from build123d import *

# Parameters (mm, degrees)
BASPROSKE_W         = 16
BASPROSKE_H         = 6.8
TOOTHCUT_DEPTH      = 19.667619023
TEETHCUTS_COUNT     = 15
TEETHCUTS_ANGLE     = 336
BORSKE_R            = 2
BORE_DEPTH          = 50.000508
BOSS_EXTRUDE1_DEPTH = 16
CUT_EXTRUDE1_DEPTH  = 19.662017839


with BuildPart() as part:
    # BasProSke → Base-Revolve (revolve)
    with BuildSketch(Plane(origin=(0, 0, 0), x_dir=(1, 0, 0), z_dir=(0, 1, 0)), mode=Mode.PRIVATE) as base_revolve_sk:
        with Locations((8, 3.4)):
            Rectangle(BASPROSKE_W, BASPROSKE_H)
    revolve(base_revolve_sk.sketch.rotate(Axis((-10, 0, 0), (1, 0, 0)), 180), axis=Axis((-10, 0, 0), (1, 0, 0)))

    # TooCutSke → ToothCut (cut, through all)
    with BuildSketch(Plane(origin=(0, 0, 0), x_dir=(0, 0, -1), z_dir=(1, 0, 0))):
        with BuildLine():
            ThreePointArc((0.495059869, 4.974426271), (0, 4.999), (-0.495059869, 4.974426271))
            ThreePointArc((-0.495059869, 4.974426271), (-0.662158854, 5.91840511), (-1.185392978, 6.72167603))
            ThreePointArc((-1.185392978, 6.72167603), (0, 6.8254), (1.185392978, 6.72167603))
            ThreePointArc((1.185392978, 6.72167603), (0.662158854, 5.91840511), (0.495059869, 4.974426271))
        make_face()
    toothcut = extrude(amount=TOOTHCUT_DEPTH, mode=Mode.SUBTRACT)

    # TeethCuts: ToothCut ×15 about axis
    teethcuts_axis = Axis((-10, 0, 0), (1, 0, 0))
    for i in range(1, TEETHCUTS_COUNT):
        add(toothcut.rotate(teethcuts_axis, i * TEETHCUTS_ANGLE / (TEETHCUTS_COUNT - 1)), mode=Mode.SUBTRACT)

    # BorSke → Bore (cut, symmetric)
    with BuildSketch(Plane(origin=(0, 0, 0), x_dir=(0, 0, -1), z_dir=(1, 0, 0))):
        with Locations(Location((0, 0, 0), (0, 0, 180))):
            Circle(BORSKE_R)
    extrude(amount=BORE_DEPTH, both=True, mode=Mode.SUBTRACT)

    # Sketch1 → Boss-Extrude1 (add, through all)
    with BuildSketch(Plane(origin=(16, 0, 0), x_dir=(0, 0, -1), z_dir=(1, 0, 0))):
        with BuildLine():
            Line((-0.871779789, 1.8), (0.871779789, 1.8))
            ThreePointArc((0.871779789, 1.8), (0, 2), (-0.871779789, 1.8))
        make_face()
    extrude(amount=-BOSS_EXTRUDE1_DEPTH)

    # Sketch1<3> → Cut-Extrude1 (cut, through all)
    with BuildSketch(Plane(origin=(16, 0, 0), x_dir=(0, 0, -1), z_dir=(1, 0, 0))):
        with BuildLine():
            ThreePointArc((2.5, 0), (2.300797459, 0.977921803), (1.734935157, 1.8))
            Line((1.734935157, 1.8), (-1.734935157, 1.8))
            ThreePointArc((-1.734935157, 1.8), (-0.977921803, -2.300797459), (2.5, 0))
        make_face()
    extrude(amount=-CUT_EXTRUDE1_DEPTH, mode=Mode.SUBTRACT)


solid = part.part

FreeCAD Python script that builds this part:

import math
import FreeCAD as App
import Part
import Sketcher

V = App.Vector
Q = App.Units.Quantity


def add_polygon(sketch, points):
    """Adds a closed chain of lines whose ends are joined by coincident constraints."""
    first, n = sketch.GeometryCount, len(points)
    for a, b in zip(points, points[1:] + points[:1]):
        sketch.addGeometry(Part.LineSegment(App.Vector(*a, 0), App.Vector(*b, 0)), False)
    for i in range(n):
        sketch.addConstraint(Sketcher.Constraint("Coincident", first + i, 2, first + (i + 1) % n, 1))

doc = App.newDocument("Part")
body = doc.addObject("PartDesign::Body", "Body")

# Sketch on XZ plane
sketch1 = body.newObject("Sketcher::SketchObject", "Sketch")
sketch1.AttachmentSupport = (doc.getObject("XZ_Plane"), [""])
sketch1.MapMode = "FlatFace"
add_polygon(sketch1, [(0, -6.8), (0, 0), (16, 0), (16, -6.8)])  # lines 0-3
sketch1.addConstraint([
    Sketcher.Constraint("Vertical", 0),
    Sketcher.Constraint("Horizontal", 1),
    Sketcher.Constraint("Vertical", 2),
    Sketcher.Constraint("Horizontal", 3),
    Sketcher.Constraint("Coincident", 0, 2, -1, 1),
    Sketcher.Constraint("DistanceX", 1, 1, 1, 2, Q("16 mm")),
    Sketcher.Constraint("DistanceY", 0, 1, 0, 2, Q("6.8 mm")),
])
revolution = body.newObject("PartDesign::Revolution", "Revolution")
revolution.Profile = sketch1
revolution.ReferenceAxis = (sketch1, ["H_Axis"])
revolution.Angle = 360

# Sketch on YZ plane
sketch2 = body.newObject("Sketcher::SketchObject", "Sketch001")
sketch2.AttachmentSupport = (doc.getObject("YZ_Plane"), [""])
sketch2.MapMode = "FlatFace"
sketch2.addGeometry([
    Part.ArcOfCircle(Part.Circle(V(0, 0, 0), V(0, 0, 1), 4.999), math.radians(-5.683419), math.radians(5.683419)),
    Part.ArcOfCircle(Part.Circle(V(5.03651, -2.894257, 0), V(0, 0, 1), 2.4), math.radians(45.400042), math.radians(91.482304)),
    Part.ArcOfCircle(Part.Circle(V(0, 0, 0), V(0, 0, 1), 6.8254), math.radians(-10.001489), math.radians(10.001489)),
    Part.ArcOfCircle(Part.Circle(V(5.03651, 2.894257, 0), V(0, 0, 1), 2.4), math.radians(-91.482304), math.radians(-45.400042)),
], False)
sketch2.addConstraint([
    Sketcher.Constraint("Coincident", 0, 1, 1, 2),
    Sketcher.Constraint("Coincident", 1, 1, 2, 1),
    Sketcher.Constraint("Coincident", 2, 2, 3, 2),
    Sketcher.Constraint("Coincident", 3, 1, 0, 2),
    Sketcher.Constraint("Coincident", 0, 3, -1, 1),
    Sketcher.Constraint("Coincident", 2, 3, -1, 1),
    Sketcher.Constraint("Equal", 1, 3),
    Sketcher.Constraint("Symmetric", 1, 3, 3, 3, -1),
    Sketcher.Constraint("Radius", 1, Q("2.4 mm")),
    Sketcher.Constraint("Radius", 0, Q("4.999 mm")),
    Sketcher.Constraint("Radius", 2, Q("6.8254 mm")),
    Sketcher.Constraint("DistanceX", -1, 1, 1, 3, Q("5.03651 mm")),
    Sketcher.Constraint("DistanceY", 0, 1, -1, 1, Q("0.49506 mm")),
])
pocket1 = body.newObject("PartDesign::Pocket", "Pocket")
pocket1.Profile = sketch2
pocket1.Type = "ThroughAll"
pocket1.Reversed = True
doc.recompute()

polarpattern = body.newObject("PartDesign::PolarPattern", "PolarPattern")
polarpattern.Originals = [pocket1]
polarpattern.Axis = (doc.getObject("X_Axis"), [""])
polarpattern.Angle = 360
polarpattern.Occurrences = 15
body.Tip = polarpattern

# Sketch on YZ plane
sketch3 = body.newObject("Sketcher::SketchObject", "Sketch002")
sketch3.AttachmentSupport = (doc.getObject("YZ_Plane"), [""])
sketch3.MapMode = "FlatFace"
sketch3.addGeometry(Part.Circle(V(0, 0, 0), V(0, 0, 1), 2), False)
sketch3.addConstraint([
    Sketcher.Constraint("Coincident", 0, 3, -1, 1),
    Sketcher.Constraint("Diameter", 0, Q("4 mm")),
])
pocket2 = body.newObject("PartDesign::Pocket", "Pocket001")
pocket2.Profile = sketch3
pocket2.Length = 100.001016
pocket2.Midplane = True

# Sketch on YZ plane
sketch4 = body.newObject("Sketcher::SketchObject", "Sketch003")
sketch4.AttachmentSupport = (doc.getObject("YZ_Plane"), [""])
sketch4.MapMode = "FlatFace"
sketch4.AttachmentOffset = App.Placement(V(0, 0, 16), App.Rotation())
sketch4.addGeometry([
    Part.LineSegment(V(1.8, 0.87178, 0), V(1.8, -0.87178, 0)),
    Part.ArcOfCircle(Part.Circle(V(0, 0, 0), V(0, 0, 1), 2), math.radians(-25.841933), math.radians(25.841933)),
], False)
sketch4.addConstraint([
    Sketcher.Constraint("Coincident", 0, 1, 1, 2),
    Sketcher.Constraint("Coincident", 1, 1, 0, 2),
    Sketcher.Constraint("Vertical", 0),
    Sketcher.Constraint("Coincident", 1, 3, -1, 1),
    Sketcher.Constraint("Radius", 1, Q("2 mm")),
    Sketcher.Constraint("DistanceX", -1, 1, 0, 1, Q("1.8 mm")),
])
pad1 = body.newObject("PartDesign::Pad", "Pad")
pad1.Profile = sketch4
pad1.Length = 16
pad1.Reversed = True

# Sketch on YZ plane
sketch5 = body.newObject("Sketcher::SketchObject", "Sketch004")
sketch5.AttachmentSupport = (doc.getObject("YZ_Plane"), [""])
sketch5.MapMode = "FlatFace"
sketch5.AttachmentOffset = App.Placement(V(0, 0, 16), App.Rotation())
sketch5.addGeometry([
    Part.ArcOfCircle(Part.Circle(V(0, 0, 0), V(0, 0, 1), 2.5), math.radians(-90), math.radians(-43.94552)),
    Part.LineSegment(V(1.8, -1.734935, 0), V(1.8, 1.734935, 0)),
    Part.ArcOfCircle(Part.Circle(V(0, 0, 0), V(0, 0, 1), 2.5), math.radians(43.94552), math.radians(270)),
], False)
sketch5.addConstraint([
    Sketcher.Constraint("Coincident", 0, 2, 1, 1),
    Sketcher.Constraint("Coincident", 1, 2, 2, 1),
    Sketcher.Constraint("Tangent", 2, 2, 0, 1),
    Sketcher.Constraint("Vertical", 1),
    Sketcher.Constraint("Coincident", 0, 3, -1, 1),
    Sketcher.Constraint("Equal", 0, 2),
    Sketcher.Constraint("PointOnObject", 2, 2, -2),
    Sketcher.Constraint("Radius", 0, Q("2.5 mm")),
    Sketcher.Constraint("DistanceX", -1, 1, 0, 2, Q("1.8 mm")),
])
pocket3 = body.newObject("PartDesign::Pocket", "Pocket002")
pocket3.Profile = sketch5
pocket3.Type = "ThroughAll"

doc.recompute()
